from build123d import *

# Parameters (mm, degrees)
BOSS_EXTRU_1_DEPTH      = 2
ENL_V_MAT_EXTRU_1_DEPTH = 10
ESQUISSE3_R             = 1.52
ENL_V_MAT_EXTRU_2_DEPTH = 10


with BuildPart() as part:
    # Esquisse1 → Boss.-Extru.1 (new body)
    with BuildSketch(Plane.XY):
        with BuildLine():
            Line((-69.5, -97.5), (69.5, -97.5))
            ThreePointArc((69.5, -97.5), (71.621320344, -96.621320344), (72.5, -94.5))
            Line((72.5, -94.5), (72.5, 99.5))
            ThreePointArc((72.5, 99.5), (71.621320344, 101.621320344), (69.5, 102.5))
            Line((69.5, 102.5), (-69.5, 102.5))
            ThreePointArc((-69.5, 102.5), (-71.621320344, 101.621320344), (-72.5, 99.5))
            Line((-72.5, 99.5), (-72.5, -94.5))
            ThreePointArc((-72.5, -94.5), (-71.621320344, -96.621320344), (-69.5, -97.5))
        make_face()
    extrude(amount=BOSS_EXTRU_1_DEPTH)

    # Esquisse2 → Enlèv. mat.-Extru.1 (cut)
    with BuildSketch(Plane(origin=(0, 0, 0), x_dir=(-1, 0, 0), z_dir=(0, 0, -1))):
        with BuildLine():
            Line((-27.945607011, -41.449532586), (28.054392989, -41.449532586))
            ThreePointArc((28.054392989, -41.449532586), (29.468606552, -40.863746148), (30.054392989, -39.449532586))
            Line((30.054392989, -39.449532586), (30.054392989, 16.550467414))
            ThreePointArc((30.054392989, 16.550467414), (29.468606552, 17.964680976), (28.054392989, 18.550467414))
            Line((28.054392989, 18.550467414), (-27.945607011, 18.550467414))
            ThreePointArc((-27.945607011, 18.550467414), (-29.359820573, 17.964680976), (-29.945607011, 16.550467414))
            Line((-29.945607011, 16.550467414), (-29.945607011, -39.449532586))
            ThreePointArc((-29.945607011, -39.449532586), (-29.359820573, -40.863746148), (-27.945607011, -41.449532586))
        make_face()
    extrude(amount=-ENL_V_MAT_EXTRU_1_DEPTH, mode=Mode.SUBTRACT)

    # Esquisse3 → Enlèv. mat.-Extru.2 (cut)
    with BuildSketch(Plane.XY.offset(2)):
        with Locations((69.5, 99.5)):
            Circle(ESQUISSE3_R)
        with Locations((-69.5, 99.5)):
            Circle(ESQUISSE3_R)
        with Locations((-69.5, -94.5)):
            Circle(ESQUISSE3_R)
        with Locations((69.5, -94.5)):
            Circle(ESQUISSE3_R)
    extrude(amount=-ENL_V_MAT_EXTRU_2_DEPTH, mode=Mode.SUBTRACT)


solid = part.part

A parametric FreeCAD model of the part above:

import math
import FreeCAD as App
import Part
import Sketcher
Q = App.Units.Quantity

doc = App.newDocument("Part")
body = doc.addObject("PartDesign::Body", "Body")

sketch1 = body.newObject("Sketcher::SketchObject", "Sketch")
sketch1.AttachmentSupport = (doc.getObject("XY_Plane"), [""])
sketch1.MapMode = "FlatFace"
sketch1.addGeometry([
    Part.LineSegment(App.Vector(-69.5, -97.5, 0), App.Vector(69.5, -97.5, 0)),
    Part.ArcOfCircle(Part.Circle(App.Vector(69.5, -94.5, 0), App.Vector(0, 0, 1), 3), math.radians(-90), math.radians(0)),
    Part.LineSegment(App.Vector(72.5, -94.5, 0), App.Vector(72.5, 99.5, 0)),
    Part.ArcOfCircle(Part.Circle(App.Vector(69.5, 99.5, 0), App.Vector(0, 0, 1), 3), math.radians(0), math.radians(90)),
    Part.LineSegment(App.Vector(69.5, 102.5, 0), App.Vector(-69.5, 102.5, 0)),
    Part.ArcOfCircle(Part.Circle(App.Vector(-69.5, 99.5, 0), App.Vector(0, 0, 1), 3), math.radians(90), math.radians(180)),
    Part.LineSegment(App.Vector(-72.5, 99.5, 0), App.Vector(-72.5, -94.5, 0)),
    Part.ArcOfCircle(Part.Circle(App.Vector(-69.5, -94.5, 0), App.Vector(0, 0, 1), 3), math.radians(180), math.radians(270)),
], False)
sketch1.addConstraint([
    Sketcher.Constraint("Tangent", 0, 2, 1, 1),
    Sketcher.Constraint("Tangent", 1, 2, 2, 1),
    Sketcher.Constraint("Tangent", 2, 2, 3, 1),
    Sketcher.Constraint("Tangent", 3, 2, 4, 1),
    Sketcher.Constraint("Tangent", 4, 2, 5, 1),
    Sketcher.Constraint("Tangent", 5, 2, 6, 1),
    Sketcher.Constraint("Tangent", 6, 2, 7, 1),
    Sketcher.Constraint("Tangent", 7, 2, 0, 1),
    Sketcher.Constraint("Horizontal", 0),
    Sketcher.Constraint("Vertical", 2),
    Sketcher.Constraint("Horizontal", 4),
    Sketcher.Constraint("Vertical", 6),
    Sketcher.Constraint("Equal", 1, 3),
    Sketcher.Constraint("Equal", 3, 5),
    Sketcher.Constraint("Equal", 5, 7),
    Sketcher.Constraint("Radius", 1, Q("3 mm")),
    Sketcher.Constraint("DistanceX", 0, 1, 0, 2, Q("139 mm")),
    Sketcher.Constraint("DistanceY", 2, 1, 2, 2, Q("194 mm")),
    Sketcher.Constraint("DistanceX", -1, 1, 1, 3, Q("69.5 mm")),
    Sketcher.Constraint("DistanceY", 1, 3, -1, 1, Q("94.5 mm")),
])
pad1 = body.newObject("PartDesign::Pad", "Pad")
pad1.Profile = sketch1
pad1.Length = 2

sketch2 = body.newObject("Sketcher::SketchObject", "Sketch001")
sketch2.AttachmentSupport = (doc.getObject("XY_Plane"), [""])
sketch2.MapMode = "FlatFace"
sketch2.addGeometry([
    Part.LineSegment(App.Vector(27.9, -41.4, 0), App.Vector(-28.1, -41.4, 0)),
    Part.ArcOfCircle(Part.Circle(App.Vector(-28.1, -39.4, 0), App.Vector(0, 0, 1), 2), math.radians(180), math.radians(270)),
    Part.LineSegment(App.Vector(-30.1, -39.4, 0), App.Vector(-30.1, 16.6, 0)),
    Part.ArcOfCircle(Part.Circle(App.Vector(-28.1, 16.6, 0), App.Vector(0, 0, 1), 2), math.radians(90), math.radians(180)),
    Part.LineSegment(App.Vector(-28.1, 18.6, 0), App.Vector(27.9, 18.6, 0)),
    Part.ArcOfCircle(Part.Circle(App.Vector(27.9, 16.6, 0), App.Vector(0, 0, 1), 2), math.radians(0), math.radians(90)),
    Part.LineSegment(App.Vector(29.9, 16.6, 0), App.Vector(29.9, -39.4, 0)),
    Part.ArcOfCircle(Part.Circle(App.Vector(27.9, -39.4, 0), App.Vector(0, 0, 1), 2), math.radians(-90), math.radians(0)),
], False)
sketch2.addConstraint([
    Sketcher.Constraint("Tangent", 0, 2, 1, 2),
    Sketcher.Constraint("Tangent", 1, 1, 2, 1),
    Sketcher.Constraint("Tangent", 2, 2, 3, 2),
    Sketcher.Constraint("Tangent", 3, 1, 4, 1),
    Sketcher.Constraint("Tangent", 4, 2, 5, 2),
    Sketcher.Constraint("Tangent", 5, 1, 6, 1),
    Sketcher.Constraint("Tangent", 6, 2, 7, 2),
    Sketcher.Constraint("Tangent", 7, 1, 0, 1),
    Sketcher.Constraint("Horizontal", 0),
    Sketcher.Constraint("Vertical", 2),
    Sketcher.Constraint("Horizontal", 4),
    Sketcher.Constraint("Vertical", 6),
    Sketcher.Constraint("Equal", 1, 3),
    Sketcher.Constraint("Equal", 3, 5),
    Sketcher.Constraint("Equal", 5, 7),
    Sketcher.Constraint("Equal", 4, 2),
    Sketcher.Constraint("Radius", 1, Q("2 mm")),
    Sketcher.Constraint("DistanceX", 0, 2, 0, 1, Q("56 mm")),
    Sketcher.Constraint("DistanceX", 1, 3, -1, 1, Q("28.054393 mm")),
    Sketcher.Constraint("DistanceY", 1, 3, -1, 1, Q("39.449533 mm")),
])
pocket1 = body.newObject("PartDesign::Pocket", "Pocket")
pocket1.Profile = sketch2
pocket1.Length = 10
pocket1.Reversed = True

sketch3 = body.newObject("Sketcher::SketchObject", "Sketch002")
sketch3.AttachmentSupport = (doc.getObject("XY_Plane"), [""])
sketch3.MapMode = "FlatFace"
sketch3.AttachmentOffset = App.Placement(App.Vector(0, 0, 2), App.Rotation())
sketch3.addGeometry([
    Part.Circle(App.Vector(69.5, 99.5, 0), App.Vector(0, 0, 1), 1.5),
    Part.Circle(App.Vector(-69.5, 99.5, 0), App.Vector(0, 0, 1), 1.5),
    Part.Circle(App.Vector(-69.5, -94.5, 0), App.Vector(0, 0, 1), 1.5),
    Part.Circle(App.Vector(69.5, -94.5, 0), App.Vector(0, 0, 1), 1.5),
], False)
sketch3.addConstraint([
    Sketcher.Constraint("Equal", 0, 1),
    Sketcher.Constraint("Equal", 1, 2),
    Sketcher.Constraint("Equal", 2, 3),
    Sketcher.Constraint("Symmetric", 0, 3, 1, 3, -2),
    Sketcher.Constraint("Symmetric", 2, 3, 3, 3, -2),
    Sketcher.Constraint("Vertical", 1, 3, 2, 3),
    Sketcher.Constraint("Diameter", 0, Q("3.04 mm")),
    Sketcher.Constraint("DistanceX", 1, 3, 0, 3, Q("139 mm")),
    Sketcher.Constraint("DistanceY", 2, 3, 1, 3, Q("194 mm")),
    Sketcher.Constraint("DistanceY", -1, 1, 0, 3, Q("99.5 mm")),
])
pocket2 = body.newObject("PartDesign::Pocket", "Pocket001")
pocket2.Profile = sketch3
pocket2.Length = 10

doc.recompute()
